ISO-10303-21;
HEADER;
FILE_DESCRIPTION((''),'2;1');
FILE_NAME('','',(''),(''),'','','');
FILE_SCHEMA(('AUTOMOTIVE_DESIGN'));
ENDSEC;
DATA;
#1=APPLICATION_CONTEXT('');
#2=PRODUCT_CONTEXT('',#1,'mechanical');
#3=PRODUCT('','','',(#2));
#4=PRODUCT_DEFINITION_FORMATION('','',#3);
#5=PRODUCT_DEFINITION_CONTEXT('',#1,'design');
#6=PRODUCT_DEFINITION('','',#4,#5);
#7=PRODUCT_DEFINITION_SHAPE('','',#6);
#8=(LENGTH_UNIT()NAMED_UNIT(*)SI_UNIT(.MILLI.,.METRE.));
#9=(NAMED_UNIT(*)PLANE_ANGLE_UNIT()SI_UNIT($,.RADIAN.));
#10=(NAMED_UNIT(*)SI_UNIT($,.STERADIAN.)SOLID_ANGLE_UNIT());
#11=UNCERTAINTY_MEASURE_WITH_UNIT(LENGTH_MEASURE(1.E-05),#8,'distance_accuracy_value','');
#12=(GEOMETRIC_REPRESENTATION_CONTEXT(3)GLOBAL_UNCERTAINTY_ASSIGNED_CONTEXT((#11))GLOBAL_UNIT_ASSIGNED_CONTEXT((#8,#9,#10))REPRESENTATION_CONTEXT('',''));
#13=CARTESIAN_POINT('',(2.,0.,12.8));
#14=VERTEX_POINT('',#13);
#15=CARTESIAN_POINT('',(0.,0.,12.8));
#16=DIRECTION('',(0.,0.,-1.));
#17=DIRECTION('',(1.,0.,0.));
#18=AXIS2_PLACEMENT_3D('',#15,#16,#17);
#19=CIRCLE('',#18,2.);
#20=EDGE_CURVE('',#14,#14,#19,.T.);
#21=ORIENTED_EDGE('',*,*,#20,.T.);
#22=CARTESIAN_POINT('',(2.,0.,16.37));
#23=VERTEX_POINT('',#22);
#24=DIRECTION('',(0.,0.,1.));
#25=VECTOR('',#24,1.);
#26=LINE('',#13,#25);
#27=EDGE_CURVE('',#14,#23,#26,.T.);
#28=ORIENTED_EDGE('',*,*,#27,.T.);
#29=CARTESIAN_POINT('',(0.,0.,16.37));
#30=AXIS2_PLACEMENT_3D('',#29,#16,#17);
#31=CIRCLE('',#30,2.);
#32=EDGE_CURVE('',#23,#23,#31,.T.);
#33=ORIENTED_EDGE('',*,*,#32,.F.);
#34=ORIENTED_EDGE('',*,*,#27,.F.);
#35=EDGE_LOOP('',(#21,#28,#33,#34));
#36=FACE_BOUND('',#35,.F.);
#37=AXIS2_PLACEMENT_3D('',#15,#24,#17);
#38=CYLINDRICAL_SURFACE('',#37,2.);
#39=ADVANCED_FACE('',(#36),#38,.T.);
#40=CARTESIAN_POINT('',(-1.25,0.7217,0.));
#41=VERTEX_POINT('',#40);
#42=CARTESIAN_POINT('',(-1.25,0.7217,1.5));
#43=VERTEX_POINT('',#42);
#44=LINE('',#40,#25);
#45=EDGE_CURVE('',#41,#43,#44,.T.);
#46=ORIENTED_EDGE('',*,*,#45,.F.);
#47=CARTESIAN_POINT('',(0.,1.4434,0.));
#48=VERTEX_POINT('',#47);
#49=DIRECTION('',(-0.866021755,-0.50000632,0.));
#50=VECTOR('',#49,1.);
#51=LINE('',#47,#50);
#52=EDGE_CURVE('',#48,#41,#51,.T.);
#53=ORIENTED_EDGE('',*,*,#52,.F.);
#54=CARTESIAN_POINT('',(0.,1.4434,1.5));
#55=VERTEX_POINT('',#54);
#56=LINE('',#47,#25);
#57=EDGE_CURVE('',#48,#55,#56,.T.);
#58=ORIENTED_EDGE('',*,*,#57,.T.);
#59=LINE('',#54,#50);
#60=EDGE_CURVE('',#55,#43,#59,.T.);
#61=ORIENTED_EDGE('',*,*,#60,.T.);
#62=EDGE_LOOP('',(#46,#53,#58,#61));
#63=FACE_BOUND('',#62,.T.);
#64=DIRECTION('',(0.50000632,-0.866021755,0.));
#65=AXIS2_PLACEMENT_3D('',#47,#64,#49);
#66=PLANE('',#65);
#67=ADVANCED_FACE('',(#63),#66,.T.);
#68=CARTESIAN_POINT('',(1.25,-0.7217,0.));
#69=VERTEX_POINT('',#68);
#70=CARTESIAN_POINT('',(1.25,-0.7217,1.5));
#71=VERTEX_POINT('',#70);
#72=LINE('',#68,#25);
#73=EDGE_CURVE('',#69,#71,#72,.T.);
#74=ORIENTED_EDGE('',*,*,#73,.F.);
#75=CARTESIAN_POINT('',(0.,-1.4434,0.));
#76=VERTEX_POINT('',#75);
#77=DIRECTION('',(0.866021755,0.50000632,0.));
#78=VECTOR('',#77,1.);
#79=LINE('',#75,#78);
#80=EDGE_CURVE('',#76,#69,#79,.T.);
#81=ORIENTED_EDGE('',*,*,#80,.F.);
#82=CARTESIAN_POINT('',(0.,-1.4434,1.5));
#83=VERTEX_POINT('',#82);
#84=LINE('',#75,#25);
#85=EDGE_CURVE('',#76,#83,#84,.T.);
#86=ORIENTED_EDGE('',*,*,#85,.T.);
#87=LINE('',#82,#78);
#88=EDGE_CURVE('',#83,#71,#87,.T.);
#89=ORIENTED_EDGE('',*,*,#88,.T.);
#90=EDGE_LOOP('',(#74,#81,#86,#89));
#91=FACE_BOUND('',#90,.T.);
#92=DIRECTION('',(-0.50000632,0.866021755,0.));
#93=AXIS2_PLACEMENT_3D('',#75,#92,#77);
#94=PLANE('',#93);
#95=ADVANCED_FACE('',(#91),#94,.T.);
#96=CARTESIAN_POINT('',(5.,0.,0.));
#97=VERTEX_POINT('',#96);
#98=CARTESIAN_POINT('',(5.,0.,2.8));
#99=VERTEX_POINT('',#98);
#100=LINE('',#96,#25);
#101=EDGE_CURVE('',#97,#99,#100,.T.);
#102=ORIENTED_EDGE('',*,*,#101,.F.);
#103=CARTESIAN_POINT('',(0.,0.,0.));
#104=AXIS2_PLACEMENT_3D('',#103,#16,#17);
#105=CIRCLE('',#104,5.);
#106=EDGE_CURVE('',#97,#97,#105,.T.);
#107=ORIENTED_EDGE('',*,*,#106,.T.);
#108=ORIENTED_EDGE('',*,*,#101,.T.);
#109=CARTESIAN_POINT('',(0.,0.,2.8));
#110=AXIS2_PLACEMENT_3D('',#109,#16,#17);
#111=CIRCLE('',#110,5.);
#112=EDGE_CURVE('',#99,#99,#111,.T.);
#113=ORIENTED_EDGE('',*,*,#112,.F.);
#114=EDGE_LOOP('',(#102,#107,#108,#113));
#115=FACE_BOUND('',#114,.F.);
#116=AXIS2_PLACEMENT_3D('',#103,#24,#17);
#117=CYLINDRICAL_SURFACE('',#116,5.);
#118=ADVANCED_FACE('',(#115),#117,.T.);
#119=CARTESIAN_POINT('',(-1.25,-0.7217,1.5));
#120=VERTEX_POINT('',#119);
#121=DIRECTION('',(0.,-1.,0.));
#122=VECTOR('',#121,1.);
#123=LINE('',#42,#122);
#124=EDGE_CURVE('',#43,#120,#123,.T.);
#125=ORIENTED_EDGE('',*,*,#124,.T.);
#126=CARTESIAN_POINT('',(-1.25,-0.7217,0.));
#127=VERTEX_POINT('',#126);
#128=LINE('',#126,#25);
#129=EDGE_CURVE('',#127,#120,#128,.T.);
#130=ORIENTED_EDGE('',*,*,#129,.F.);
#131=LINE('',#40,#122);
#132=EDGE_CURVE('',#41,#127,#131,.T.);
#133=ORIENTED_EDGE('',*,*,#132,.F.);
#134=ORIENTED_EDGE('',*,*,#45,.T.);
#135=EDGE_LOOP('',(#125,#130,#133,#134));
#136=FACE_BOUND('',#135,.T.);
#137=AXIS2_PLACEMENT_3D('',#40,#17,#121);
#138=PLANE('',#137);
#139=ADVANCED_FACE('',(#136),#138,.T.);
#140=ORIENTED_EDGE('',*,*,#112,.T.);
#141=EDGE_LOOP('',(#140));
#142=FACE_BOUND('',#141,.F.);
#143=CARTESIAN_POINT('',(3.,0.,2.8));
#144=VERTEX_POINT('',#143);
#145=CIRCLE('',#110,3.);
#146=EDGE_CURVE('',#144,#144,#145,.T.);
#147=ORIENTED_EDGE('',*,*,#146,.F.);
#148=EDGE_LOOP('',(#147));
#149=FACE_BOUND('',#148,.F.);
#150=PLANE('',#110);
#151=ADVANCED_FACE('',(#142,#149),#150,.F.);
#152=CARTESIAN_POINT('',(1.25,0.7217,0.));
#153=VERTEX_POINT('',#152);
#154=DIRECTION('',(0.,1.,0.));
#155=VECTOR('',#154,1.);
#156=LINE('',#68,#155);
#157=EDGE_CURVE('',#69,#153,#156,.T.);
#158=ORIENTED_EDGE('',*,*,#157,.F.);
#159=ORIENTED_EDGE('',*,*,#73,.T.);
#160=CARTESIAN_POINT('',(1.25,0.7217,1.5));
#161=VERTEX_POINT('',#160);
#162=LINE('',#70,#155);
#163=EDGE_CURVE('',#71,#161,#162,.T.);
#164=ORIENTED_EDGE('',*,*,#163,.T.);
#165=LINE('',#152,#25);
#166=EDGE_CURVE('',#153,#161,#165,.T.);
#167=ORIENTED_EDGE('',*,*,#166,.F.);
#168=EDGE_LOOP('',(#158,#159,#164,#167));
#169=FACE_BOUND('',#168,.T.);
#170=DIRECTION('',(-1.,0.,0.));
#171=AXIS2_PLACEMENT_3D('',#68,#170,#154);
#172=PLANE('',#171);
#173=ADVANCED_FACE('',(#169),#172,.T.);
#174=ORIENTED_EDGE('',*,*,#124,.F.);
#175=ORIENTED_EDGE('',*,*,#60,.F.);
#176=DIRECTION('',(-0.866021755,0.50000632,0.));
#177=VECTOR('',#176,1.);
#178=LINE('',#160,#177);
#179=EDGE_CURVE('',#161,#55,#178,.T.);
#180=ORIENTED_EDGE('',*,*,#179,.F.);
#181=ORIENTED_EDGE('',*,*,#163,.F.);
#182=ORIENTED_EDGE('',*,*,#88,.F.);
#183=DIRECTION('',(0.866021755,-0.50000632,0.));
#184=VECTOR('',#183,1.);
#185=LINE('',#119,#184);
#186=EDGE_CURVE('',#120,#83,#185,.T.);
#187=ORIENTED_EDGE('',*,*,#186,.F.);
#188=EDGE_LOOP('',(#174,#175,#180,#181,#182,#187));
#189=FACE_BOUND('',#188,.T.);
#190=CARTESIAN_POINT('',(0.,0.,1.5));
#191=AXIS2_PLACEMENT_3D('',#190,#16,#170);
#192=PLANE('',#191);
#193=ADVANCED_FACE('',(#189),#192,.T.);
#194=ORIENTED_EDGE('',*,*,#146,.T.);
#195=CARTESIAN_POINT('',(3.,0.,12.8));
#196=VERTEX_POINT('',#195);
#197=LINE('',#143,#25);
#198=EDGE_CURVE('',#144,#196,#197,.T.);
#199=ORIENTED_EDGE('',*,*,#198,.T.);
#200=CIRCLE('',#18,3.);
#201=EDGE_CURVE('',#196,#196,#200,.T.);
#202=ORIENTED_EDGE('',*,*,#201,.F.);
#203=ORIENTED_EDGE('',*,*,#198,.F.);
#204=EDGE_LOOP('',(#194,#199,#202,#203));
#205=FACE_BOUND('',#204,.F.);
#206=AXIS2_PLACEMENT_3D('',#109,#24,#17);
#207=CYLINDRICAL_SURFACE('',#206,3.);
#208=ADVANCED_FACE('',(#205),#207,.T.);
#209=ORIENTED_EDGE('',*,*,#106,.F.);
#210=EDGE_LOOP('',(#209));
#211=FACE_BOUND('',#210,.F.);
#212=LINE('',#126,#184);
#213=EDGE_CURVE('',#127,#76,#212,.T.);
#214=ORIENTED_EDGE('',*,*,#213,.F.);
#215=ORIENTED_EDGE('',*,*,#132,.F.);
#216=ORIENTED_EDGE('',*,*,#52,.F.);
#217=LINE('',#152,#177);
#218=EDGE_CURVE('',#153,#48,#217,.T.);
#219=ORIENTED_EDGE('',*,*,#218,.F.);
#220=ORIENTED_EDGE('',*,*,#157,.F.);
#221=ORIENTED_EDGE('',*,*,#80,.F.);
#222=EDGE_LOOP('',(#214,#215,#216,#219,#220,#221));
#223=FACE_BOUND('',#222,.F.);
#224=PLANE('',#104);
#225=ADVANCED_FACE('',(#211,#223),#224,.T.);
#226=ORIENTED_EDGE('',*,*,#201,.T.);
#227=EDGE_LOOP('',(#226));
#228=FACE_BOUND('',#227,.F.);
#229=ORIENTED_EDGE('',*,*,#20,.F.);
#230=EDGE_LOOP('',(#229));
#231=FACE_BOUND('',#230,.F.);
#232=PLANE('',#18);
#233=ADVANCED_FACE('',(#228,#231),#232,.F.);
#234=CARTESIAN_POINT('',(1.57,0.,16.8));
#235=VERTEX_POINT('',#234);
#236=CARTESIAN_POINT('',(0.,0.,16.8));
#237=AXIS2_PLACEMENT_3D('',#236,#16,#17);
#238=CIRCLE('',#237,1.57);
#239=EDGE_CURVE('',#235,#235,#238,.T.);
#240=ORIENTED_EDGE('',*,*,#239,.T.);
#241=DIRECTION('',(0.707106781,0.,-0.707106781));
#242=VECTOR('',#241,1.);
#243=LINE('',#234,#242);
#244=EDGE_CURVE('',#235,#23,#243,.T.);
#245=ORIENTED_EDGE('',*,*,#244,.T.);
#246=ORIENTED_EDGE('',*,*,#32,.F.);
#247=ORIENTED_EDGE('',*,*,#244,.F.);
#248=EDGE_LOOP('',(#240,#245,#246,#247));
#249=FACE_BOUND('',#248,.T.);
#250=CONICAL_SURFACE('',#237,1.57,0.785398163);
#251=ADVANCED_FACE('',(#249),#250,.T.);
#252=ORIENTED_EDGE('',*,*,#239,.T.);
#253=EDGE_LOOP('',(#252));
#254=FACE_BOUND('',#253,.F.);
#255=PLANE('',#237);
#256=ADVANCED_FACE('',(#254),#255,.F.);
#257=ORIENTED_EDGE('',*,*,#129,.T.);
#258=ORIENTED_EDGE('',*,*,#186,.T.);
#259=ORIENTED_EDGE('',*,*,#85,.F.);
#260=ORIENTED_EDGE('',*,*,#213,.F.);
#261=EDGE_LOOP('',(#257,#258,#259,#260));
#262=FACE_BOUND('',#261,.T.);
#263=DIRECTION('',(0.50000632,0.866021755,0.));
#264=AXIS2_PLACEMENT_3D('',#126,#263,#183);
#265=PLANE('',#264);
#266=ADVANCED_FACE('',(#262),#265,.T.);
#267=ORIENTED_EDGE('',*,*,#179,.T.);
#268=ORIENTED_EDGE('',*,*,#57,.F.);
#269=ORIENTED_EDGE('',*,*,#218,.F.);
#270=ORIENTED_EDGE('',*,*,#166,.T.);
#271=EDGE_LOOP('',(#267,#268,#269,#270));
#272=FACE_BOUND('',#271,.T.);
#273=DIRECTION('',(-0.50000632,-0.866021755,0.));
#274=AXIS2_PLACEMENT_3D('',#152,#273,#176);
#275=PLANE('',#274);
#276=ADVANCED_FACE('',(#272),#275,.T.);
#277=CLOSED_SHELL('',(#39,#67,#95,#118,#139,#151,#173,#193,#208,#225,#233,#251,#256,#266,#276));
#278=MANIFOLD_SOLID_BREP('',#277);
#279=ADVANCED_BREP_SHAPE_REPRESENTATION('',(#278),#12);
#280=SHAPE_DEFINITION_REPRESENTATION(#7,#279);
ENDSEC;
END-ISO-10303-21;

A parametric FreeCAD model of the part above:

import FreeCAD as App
import Part
import Sketcher

V = App.Vector
Q = App.Units.Quantity

doc = App.newDocument("Part")
body = doc.addObject("PartDesign::Body", "Body")

sketch1 = doc.addObject("Sketcher::SketchObject", "Sketch")
body.addObject(sketch1)
sketch1.AttachmentSupport = (doc.XZ_Plane, [""])
sketch1.MapMode = "FlatFace"
sketch1.addGeometry([
    Part.LineSegment(V(5, 0, 0), V(0, 0, 0)),
    Part.LineSegment(V(0, 0, 0), V(0, 16.8, 0)),
    Part.LineSegment(V(0, 16.8, 0), V(1.57, 16.8, 0)),
    Part.LineSegment(V(1.57, 16.8, 0), V(2, 16.37, 0)),
    Part.LineSegment(V(2, 16.37, 0), V(2, 12.8, 0)),
    Part.LineSegment(V(2, 12.8, 0), V(3, 12.8, 0)),
    Part.LineSegment(V(3, 12.8, 0), V(3, 2.8, 0)),
    Part.LineSegment(V(3, 2.8, 0), V(5, 2.8, 0)),
    Part.LineSegment(V(5, 2.8, 0), V(5, 0, 0)),
], False)
sketch1.addConstraint([
    Sketcher.Constraint("Coincident", 0, 2, 1, 1),
    Sketcher.Constraint("Coincident", 1, 2, 2, 1),
    Sketcher.Constraint("Coincident", 2, 2, 3, 1),
    Sketcher.Constraint("Coincident", 3, 2, 4, 1),
    Sketcher.Constraint("Coincident", 4, 2, 5, 1),
    Sketcher.Constraint("Coincident", 5, 2, 6, 1),
    Sketcher.Constraint("Coincident", 6, 2, 7, 1),
    Sketcher.Constraint("Coincident", 7, 2, 8, 1),
    Sketcher.Constraint("Coincident", 8, 2, 0, 1),
    Sketcher.Constraint("Horizontal", 0),
    Sketcher.Constraint("Vertical", 1),
    Sketcher.Constraint("Horizontal", 2),
    Sketcher.Constraint("Vertical", 4),
    Sketcher.Constraint("Horizontal", 5),
    Sketcher.Constraint("Vertical", 6),
    Sketcher.Constraint("Horizontal", 7),
    Sketcher.Constraint("Vertical", 8),
    Sketcher.Constraint("Coincident", 0, 2, -1, 1),
    Sketcher.Constraint("DistanceY", 6, 2, 6, 1, Q("10 mm")),
    Sketcher.Constraint("DistanceY", 8, 2, 8, 1, Q("2.8 mm")),
    Sketcher.Constraint("DistanceY", 4, 2, 2, 2, Q("4 mm")),
    Sketcher.Constraint("DistanceX", 0, 2, 0, 1, Q("5 mm")),
    Sketcher.Constraint("DistanceX", 5, 1, 5, 2, Q("1 mm")),
    Sketcher.Constraint("DistanceX", 7, 1, 7, 2, Q("2 mm")),
    Sketcher.Constraint("Angle", 3, Q("-45 deg")),
    Sketcher.Constraint("DistanceX", 2, 2, 3, 2, Q("0.43 mm")),
])
revolution = doc.addObject("PartDesign::Revolution", "Revolution")
body.addObject(revolution)
revolution.Profile = sketch1
revolution.ReferenceAxis = (sketch1, ["V_Axis"])
revolution.Angle = 360

sketch2 = doc.addObject("Sketcher::SketchObject", "Sketch001")
body.addObject(sketch2)
sketch2.AttachmentSupport = (doc.XY_Plane, [""])
sketch2.MapMode = "FlatFace"
sketch2.addGeometry([
    Part.LineSegment(V(1.25, -0.7217, 0), V(0, -1.4434, 0)),
    Part.LineSegment(V(0, -1.4434, 0), V(-1.25, -0.7217, 0)),
    Part.LineSegment(V(-1.25, -0.7217, 0), V(-1.25, 0.7217, 0)),
    Part.LineSegment(V(-1.25, 0.7217, 0), V(0, 1.4434, 0)),
    Part.LineSegment(V(0, 1.4434, 0), V(1.25, 0.7217, 0)),
    Part.LineSegment(V(1.25, 0.7217, 0), V(1.25, -0.7217, 0)),
], False)
sketch2.addConstraint([
    Sketcher.Constraint("Coincident", 0, 2, 1, 1),
    Sketcher.Constraint("Coincident", 1, 2, 2, 1),
    Sketcher.Constraint("Coincident", 2, 2, 3, 1),
    Sketcher.Constraint("Coincident", 3, 2, 4, 1),
    Sketcher.Constraint("Coincident", 4, 2, 5, 1),
    Sketcher.Constraint("Coincident", 5, 2, 0, 1),
    Sketcher.Constraint("Vertical", 2),
    Sketcher.Constraint("Vertical", 5),
    Sketcher.Constraint("Symmetric", 0, 2, 3, 2, -1, 1),
    Sketcher.Constraint("Symmetric", 1, 2, 4, 2, -1, 1),
    Sketcher.Constraint("PointOnObject", 0, 2, -2),
    Sketcher.Constraint("Parallel", 0, 3),
    Sketcher.Constraint("Horizontal", 2, 2, 4, 2),
    Sketcher.Constraint("DistanceX", 2, 2, 4, 2, Q("2.5 mm")),
    Sketcher.Constraint("Angle", 0, Q("-149.9996 deg")),
    Sketcher.Constraint("DistanceY", 2, 1, 2, 2, Q("1.4434 mm")),
])
pocket1 = doc.addObject("PartDesign::Pocket", "Pocket")
body.addObject(pocket1)
pocket1.Profile = sketch2
pocket1.Length = 1.5
pocket1.Reversed = True

doc.recompute()
